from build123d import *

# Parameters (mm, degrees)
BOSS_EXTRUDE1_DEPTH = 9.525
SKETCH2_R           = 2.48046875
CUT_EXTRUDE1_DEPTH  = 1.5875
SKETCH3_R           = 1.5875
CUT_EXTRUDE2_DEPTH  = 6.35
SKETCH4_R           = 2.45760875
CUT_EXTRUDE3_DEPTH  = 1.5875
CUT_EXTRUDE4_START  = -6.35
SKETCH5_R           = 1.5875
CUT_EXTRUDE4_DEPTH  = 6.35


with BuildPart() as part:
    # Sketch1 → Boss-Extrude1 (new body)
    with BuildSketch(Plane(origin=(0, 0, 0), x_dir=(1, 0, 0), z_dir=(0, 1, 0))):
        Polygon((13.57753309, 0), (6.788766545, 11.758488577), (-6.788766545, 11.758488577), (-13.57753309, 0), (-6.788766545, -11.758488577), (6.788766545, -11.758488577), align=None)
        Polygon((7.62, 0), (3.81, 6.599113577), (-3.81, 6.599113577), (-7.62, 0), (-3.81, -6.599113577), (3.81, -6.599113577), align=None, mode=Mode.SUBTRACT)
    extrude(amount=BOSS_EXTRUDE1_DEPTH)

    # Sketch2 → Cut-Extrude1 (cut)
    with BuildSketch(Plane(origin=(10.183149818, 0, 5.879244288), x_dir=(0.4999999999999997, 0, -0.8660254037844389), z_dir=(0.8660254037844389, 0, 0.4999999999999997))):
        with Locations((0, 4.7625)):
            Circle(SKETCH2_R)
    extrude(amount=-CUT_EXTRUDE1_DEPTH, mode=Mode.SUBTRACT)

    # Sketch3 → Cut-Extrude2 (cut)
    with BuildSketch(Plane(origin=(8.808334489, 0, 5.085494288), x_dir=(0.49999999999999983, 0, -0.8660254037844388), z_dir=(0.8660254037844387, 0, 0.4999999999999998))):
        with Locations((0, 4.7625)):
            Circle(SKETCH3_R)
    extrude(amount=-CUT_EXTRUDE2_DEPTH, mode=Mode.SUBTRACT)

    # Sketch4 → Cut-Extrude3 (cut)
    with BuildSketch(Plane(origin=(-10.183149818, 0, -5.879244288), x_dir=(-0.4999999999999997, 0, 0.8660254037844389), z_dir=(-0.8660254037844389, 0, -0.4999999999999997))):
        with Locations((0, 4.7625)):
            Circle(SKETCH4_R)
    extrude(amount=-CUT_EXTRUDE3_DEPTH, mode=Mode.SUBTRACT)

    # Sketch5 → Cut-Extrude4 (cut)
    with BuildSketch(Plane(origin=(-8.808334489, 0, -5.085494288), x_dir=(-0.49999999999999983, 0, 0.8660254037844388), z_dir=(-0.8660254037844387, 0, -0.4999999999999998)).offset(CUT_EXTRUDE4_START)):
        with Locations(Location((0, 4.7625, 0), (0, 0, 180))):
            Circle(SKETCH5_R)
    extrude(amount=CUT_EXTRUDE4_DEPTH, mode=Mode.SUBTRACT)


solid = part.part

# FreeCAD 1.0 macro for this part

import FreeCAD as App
import Part
import Sketcher

V = App.Vector
Q = App.Units.Quantity

doc = App.newDocument("Part")
body = doc.addObject("PartDesign::Body", "Body")

# Sketch on XZ plane
sketch1 = body.newObject("Sketcher::SketchObject", "Sketch")
sketch1.AttachmentSupport = (doc.getObject("XZ_Plane"), [""])
sketch1.MapMode = "FlatFace"
sketch1.addGeometry(Part.LineSegment(V(14, 0, 0), V(7, -12, 0)), False)
sketch1.addGeometry(Part.LineSegment(V(7, -12, 0), V(-7, -12, 0)), False)
sketch1.addGeometry(Part.LineSegment(V(-7, -12, 0), V(-14, 0, 0)), False)
sketch1.addGeometry(Part.LineSegment(V(-14, 0, 0), V(-7, 12, 0)), False)
sketch1.addGeometry(Part.LineSegment(V(-7, 12, 0), V(7, 12, 0)), False)
sketch1.addGeometry(Part.LineSegment(V(7, 12, 0), V(14, 0, 0)), False)
sketch1.addGeometry(Part.LineSegment(V(4, -7, 0), V(8, 0, 0)), False)
sketch1.addGeometry(Part.LineSegment(V(8, 0, 0), V(4, 7, 0)), False)
sketch1.addGeometry(Part.LineSegment(V(4, 7, 0), V(-4, 7, 0)), False)
sketch1.addGeometry(Part.LineSegment(V(-4, 7, 0), V(-8, 0, 0)), False)
sketch1.addGeometry(Part.LineSegment(V(-8, 0, 0), V(-4, -7, 0)), False)
sketch1.addGeometry(Part.LineSegment(V(-4, -7, 0), V(4, -7, 0)), False)
sketch1.addConstraint(Sketcher.Constraint("Coincident", 0, 2, 1, 1))
sketch1.addConstraint(Sketcher.Constraint("Coincident", 1, 2, 2, 1))
sketch1.addConstraint(Sketcher.Constraint("Coincident", 2, 2, 3, 1))
sketch1.addConstraint(Sketcher.Constraint("Coincident", 3, 2, 4, 1))
sketch1.addConstraint(Sketcher.Constraint("Coincident", 4, 2, 5, 1))
sketch1.addConstraint(Sketcher.Constraint("Coincident", 5, 2, 0, 1))
sketch1.addConstraint(Sketcher.Constraint("Coincident", 6, 2, 7, 1))
sketch1.addConstraint(Sketcher.Constraint("Coincident", 7, 2, 8, 1))
sketch1.addConstraint(Sketcher.Constraint("Coincident", 8, 2, 9, 1))
sketch1.addConstraint(Sketcher.Constraint("Coincident", 9, 2, 10, 1))
sketch1.addConstraint(Sketcher.Constraint("Coincident", 10, 2, 11, 1))
sketch1.addConstraint(Sketcher.Constraint("Coincident", 11, 2, 6, 1))
sketch1.addConstraint(Sketcher.Constraint("Horizontal", 1))
sketch1.addConstraint(Sketcher.Constraint("Horizontal", 4))
sketch1.addConstraint(Sketcher.Constraint("Horizontal", 8))
sketch1.addConstraint(Sketcher.Constraint("Horizontal", 11))
sketch1.addConstraint(Sketcher.Constraint("Symmetric", 0, 2, 3, 2, -1, 1))
sketch1.addConstraint(Sketcher.Constraint("Symmetric", 2, 2, 5, 2, -1, 1))
sketch1.addConstraint(Sketcher.Constraint("Symmetric", 6, 2, 9, 2, -1, 1))
sketch1.addConstraint(Sketcher.Constraint("Symmetric", 7, 2, 10, 2, -1, 1))
sketch1.addConstraint(Sketcher.Constraint("PointOnObject", 2, 2, -1))
sketch1.addConstraint(Sketcher.Constraint("PointOnObject", 6, 2, -1))
sketch1.addConstraint(Sketcher.Constraint("Parallel", 2, 5))
sketch1.addConstraint(Sketcher.Constraint("Parallel", 3, 6))
sketch1.addConstraint(Sketcher.Constraint("Parallel", 5, 7))
sketch1.addConstraint(Sketcher.Constraint("Parallel", 6, 9))
sketch1.addConstraint(Sketcher.Constraint("Vertical", 1, 2, 3, 2))
sketch1.addConstraint(Sketcher.Constraint("DistanceX", 8, 2, 8, 1, Q("0.3 in")))
sketch1.addConstraint(Sketcher.Constraint("Angle", 0, Q("-120 deg")))
sketch1.addConstraint(Sketcher.Constraint("Distance", 6, Q("0.3 in")))
sketch1.addConstraint(Sketcher.Constraint("DistanceY", 7, 2, 4, 2, Q("0.203125 in")))
sketch1.addConstraint(Sketcher.Constraint("DistanceX", 2, 2, 0, 2, Q("20.3663 mm")))
pad1 = body.newObject("PartDesign::Pad", "Pad")
pad1.Profile = sketch1
pad1.Length = Q("0.375 in")
pad1.Reversed = True

# Sketch on an angled plane
sketch2 = body.newObject("Sketcher::SketchObject", "Sketch001")
sketch2.Placement = App.Placement(V(10.18315, 0, 5.879244), App.Rotation(V(0.5, 0, -0.866025404), V(0, 1, 0), V(0.866025404, 0, 0.5), "ZXY"))
sketch2.addGeometry(Part.Circle(V(0, 4.8, 0), V(0, 0, 1), 2.5), False)
sketch2.addConstraint(Sketcher.Constraint("PointOnObject", 0, 3, -2))
sketch2.addConstraint(Sketcher.Constraint("DistanceY", -1, 1, 0, 3, Q("0.1875 in")))
sketch2.addConstraint(Sketcher.Constraint("Diameter", 0, Q("4.960938 mm")))
pocket1 = body.newObject("PartDesign::Pocket", "Pocket")
pocket1.Profile = sketch2
pocket1.Length = Q("0.0625 in")

# Sketch on an angled plane
sketch3 = body.newObject("Sketcher::SketchObject", "Sketch002")
sketch3.Placement = App.Placement(V(8.808334, 0, 5.085494), App.Rotation(V(0.5, 0, -0.866025404), V(0, 1, 0), V(0.866025404, 0, 0.5), "ZXY"))
sketch3.addGeometry(Part.Circle(V(0, 4.8, 0), V(0, 0, 1), 1.6), False)
sketch3.addConstraint(Sketcher.Constraint("PointOnObject", 0, 3, -2))
sketch3.addConstraint(Sketcher.Constraint("Diameter", 0, Q("0.125 in")))
sketch3.addConstraint(Sketcher.Constraint("DistanceY", -1, 1, 0, 3, Q("0.1875 in")))
pocket2 = body.newObject("PartDesign::Pocket", "Pocket001")
pocket2.Profile = sketch3
pocket2.Length = Q("0.25 in")

# Sketch on an angled plane
sketch4 = body.newObject("Sketcher::SketchObject", "Sketch003")
sketch4.Placement = App.Placement(V(-10.18315, 0, -5.879244), App.Rotation(V(-0.5, 0, 0.866025404), V(0, 1, 0), V(-0.866025404, 0, -0.5), "ZXY"))
sketch4.addGeometry(Part.Circle(V(0, 4.8, 0), V(0, 0, 1), 2.5), False)
sketch4.addConstraint(Sketcher.Constraint("PointOnObject", 0, 3, -2))
sketch4.addConstraint(Sketcher.Constraint("DistanceY", -1, 1, 0, 3, Q("0.1875 in")))
sketch4.addConstraint(Sketcher.Constraint("Diameter", 0, Q("4.915217 mm")))
pocket3 = body.newObject("PartDesign::Pocket", "Pocket002")
pocket3.Profile = sketch4
pocket3.Length = Q("0.0625 in")

# Sketch on an angled plane
sketch5 = body.newObject("Sketcher::SketchObject", "Sketch004")
sketch5.Placement = App.Placement(V(-3.309073, 0, -1.910494), App.Rotation(V(-0.5, 0, 0.866025404), V(0, 1, 0), V(-0.866025404, 0, -0.5), "ZXY"))
sketch5.addGeometry(Part.Circle(V(0, 4.8, 0), V(0, 0, 1), 1.6), False)
sketch5.addConstraint(Sketcher.Constraint("PointOnObject", 0, 3, -2))
sketch5.addConstraint(Sketcher.Constraint("Diameter", 0, Q("0.125 in")))
sketch5.addConstraint(Sketcher.Constraint("DistanceY", -1, 1, 0, 3, Q("0.1875 in")))
pocket4 = body.newObject("PartDesign::Pocket", "Pocket003")
pocket4.Profile = sketch5
pocket4.Length = Q("0.25 in")
pocket4.Reversed = True

doc.recompute()
